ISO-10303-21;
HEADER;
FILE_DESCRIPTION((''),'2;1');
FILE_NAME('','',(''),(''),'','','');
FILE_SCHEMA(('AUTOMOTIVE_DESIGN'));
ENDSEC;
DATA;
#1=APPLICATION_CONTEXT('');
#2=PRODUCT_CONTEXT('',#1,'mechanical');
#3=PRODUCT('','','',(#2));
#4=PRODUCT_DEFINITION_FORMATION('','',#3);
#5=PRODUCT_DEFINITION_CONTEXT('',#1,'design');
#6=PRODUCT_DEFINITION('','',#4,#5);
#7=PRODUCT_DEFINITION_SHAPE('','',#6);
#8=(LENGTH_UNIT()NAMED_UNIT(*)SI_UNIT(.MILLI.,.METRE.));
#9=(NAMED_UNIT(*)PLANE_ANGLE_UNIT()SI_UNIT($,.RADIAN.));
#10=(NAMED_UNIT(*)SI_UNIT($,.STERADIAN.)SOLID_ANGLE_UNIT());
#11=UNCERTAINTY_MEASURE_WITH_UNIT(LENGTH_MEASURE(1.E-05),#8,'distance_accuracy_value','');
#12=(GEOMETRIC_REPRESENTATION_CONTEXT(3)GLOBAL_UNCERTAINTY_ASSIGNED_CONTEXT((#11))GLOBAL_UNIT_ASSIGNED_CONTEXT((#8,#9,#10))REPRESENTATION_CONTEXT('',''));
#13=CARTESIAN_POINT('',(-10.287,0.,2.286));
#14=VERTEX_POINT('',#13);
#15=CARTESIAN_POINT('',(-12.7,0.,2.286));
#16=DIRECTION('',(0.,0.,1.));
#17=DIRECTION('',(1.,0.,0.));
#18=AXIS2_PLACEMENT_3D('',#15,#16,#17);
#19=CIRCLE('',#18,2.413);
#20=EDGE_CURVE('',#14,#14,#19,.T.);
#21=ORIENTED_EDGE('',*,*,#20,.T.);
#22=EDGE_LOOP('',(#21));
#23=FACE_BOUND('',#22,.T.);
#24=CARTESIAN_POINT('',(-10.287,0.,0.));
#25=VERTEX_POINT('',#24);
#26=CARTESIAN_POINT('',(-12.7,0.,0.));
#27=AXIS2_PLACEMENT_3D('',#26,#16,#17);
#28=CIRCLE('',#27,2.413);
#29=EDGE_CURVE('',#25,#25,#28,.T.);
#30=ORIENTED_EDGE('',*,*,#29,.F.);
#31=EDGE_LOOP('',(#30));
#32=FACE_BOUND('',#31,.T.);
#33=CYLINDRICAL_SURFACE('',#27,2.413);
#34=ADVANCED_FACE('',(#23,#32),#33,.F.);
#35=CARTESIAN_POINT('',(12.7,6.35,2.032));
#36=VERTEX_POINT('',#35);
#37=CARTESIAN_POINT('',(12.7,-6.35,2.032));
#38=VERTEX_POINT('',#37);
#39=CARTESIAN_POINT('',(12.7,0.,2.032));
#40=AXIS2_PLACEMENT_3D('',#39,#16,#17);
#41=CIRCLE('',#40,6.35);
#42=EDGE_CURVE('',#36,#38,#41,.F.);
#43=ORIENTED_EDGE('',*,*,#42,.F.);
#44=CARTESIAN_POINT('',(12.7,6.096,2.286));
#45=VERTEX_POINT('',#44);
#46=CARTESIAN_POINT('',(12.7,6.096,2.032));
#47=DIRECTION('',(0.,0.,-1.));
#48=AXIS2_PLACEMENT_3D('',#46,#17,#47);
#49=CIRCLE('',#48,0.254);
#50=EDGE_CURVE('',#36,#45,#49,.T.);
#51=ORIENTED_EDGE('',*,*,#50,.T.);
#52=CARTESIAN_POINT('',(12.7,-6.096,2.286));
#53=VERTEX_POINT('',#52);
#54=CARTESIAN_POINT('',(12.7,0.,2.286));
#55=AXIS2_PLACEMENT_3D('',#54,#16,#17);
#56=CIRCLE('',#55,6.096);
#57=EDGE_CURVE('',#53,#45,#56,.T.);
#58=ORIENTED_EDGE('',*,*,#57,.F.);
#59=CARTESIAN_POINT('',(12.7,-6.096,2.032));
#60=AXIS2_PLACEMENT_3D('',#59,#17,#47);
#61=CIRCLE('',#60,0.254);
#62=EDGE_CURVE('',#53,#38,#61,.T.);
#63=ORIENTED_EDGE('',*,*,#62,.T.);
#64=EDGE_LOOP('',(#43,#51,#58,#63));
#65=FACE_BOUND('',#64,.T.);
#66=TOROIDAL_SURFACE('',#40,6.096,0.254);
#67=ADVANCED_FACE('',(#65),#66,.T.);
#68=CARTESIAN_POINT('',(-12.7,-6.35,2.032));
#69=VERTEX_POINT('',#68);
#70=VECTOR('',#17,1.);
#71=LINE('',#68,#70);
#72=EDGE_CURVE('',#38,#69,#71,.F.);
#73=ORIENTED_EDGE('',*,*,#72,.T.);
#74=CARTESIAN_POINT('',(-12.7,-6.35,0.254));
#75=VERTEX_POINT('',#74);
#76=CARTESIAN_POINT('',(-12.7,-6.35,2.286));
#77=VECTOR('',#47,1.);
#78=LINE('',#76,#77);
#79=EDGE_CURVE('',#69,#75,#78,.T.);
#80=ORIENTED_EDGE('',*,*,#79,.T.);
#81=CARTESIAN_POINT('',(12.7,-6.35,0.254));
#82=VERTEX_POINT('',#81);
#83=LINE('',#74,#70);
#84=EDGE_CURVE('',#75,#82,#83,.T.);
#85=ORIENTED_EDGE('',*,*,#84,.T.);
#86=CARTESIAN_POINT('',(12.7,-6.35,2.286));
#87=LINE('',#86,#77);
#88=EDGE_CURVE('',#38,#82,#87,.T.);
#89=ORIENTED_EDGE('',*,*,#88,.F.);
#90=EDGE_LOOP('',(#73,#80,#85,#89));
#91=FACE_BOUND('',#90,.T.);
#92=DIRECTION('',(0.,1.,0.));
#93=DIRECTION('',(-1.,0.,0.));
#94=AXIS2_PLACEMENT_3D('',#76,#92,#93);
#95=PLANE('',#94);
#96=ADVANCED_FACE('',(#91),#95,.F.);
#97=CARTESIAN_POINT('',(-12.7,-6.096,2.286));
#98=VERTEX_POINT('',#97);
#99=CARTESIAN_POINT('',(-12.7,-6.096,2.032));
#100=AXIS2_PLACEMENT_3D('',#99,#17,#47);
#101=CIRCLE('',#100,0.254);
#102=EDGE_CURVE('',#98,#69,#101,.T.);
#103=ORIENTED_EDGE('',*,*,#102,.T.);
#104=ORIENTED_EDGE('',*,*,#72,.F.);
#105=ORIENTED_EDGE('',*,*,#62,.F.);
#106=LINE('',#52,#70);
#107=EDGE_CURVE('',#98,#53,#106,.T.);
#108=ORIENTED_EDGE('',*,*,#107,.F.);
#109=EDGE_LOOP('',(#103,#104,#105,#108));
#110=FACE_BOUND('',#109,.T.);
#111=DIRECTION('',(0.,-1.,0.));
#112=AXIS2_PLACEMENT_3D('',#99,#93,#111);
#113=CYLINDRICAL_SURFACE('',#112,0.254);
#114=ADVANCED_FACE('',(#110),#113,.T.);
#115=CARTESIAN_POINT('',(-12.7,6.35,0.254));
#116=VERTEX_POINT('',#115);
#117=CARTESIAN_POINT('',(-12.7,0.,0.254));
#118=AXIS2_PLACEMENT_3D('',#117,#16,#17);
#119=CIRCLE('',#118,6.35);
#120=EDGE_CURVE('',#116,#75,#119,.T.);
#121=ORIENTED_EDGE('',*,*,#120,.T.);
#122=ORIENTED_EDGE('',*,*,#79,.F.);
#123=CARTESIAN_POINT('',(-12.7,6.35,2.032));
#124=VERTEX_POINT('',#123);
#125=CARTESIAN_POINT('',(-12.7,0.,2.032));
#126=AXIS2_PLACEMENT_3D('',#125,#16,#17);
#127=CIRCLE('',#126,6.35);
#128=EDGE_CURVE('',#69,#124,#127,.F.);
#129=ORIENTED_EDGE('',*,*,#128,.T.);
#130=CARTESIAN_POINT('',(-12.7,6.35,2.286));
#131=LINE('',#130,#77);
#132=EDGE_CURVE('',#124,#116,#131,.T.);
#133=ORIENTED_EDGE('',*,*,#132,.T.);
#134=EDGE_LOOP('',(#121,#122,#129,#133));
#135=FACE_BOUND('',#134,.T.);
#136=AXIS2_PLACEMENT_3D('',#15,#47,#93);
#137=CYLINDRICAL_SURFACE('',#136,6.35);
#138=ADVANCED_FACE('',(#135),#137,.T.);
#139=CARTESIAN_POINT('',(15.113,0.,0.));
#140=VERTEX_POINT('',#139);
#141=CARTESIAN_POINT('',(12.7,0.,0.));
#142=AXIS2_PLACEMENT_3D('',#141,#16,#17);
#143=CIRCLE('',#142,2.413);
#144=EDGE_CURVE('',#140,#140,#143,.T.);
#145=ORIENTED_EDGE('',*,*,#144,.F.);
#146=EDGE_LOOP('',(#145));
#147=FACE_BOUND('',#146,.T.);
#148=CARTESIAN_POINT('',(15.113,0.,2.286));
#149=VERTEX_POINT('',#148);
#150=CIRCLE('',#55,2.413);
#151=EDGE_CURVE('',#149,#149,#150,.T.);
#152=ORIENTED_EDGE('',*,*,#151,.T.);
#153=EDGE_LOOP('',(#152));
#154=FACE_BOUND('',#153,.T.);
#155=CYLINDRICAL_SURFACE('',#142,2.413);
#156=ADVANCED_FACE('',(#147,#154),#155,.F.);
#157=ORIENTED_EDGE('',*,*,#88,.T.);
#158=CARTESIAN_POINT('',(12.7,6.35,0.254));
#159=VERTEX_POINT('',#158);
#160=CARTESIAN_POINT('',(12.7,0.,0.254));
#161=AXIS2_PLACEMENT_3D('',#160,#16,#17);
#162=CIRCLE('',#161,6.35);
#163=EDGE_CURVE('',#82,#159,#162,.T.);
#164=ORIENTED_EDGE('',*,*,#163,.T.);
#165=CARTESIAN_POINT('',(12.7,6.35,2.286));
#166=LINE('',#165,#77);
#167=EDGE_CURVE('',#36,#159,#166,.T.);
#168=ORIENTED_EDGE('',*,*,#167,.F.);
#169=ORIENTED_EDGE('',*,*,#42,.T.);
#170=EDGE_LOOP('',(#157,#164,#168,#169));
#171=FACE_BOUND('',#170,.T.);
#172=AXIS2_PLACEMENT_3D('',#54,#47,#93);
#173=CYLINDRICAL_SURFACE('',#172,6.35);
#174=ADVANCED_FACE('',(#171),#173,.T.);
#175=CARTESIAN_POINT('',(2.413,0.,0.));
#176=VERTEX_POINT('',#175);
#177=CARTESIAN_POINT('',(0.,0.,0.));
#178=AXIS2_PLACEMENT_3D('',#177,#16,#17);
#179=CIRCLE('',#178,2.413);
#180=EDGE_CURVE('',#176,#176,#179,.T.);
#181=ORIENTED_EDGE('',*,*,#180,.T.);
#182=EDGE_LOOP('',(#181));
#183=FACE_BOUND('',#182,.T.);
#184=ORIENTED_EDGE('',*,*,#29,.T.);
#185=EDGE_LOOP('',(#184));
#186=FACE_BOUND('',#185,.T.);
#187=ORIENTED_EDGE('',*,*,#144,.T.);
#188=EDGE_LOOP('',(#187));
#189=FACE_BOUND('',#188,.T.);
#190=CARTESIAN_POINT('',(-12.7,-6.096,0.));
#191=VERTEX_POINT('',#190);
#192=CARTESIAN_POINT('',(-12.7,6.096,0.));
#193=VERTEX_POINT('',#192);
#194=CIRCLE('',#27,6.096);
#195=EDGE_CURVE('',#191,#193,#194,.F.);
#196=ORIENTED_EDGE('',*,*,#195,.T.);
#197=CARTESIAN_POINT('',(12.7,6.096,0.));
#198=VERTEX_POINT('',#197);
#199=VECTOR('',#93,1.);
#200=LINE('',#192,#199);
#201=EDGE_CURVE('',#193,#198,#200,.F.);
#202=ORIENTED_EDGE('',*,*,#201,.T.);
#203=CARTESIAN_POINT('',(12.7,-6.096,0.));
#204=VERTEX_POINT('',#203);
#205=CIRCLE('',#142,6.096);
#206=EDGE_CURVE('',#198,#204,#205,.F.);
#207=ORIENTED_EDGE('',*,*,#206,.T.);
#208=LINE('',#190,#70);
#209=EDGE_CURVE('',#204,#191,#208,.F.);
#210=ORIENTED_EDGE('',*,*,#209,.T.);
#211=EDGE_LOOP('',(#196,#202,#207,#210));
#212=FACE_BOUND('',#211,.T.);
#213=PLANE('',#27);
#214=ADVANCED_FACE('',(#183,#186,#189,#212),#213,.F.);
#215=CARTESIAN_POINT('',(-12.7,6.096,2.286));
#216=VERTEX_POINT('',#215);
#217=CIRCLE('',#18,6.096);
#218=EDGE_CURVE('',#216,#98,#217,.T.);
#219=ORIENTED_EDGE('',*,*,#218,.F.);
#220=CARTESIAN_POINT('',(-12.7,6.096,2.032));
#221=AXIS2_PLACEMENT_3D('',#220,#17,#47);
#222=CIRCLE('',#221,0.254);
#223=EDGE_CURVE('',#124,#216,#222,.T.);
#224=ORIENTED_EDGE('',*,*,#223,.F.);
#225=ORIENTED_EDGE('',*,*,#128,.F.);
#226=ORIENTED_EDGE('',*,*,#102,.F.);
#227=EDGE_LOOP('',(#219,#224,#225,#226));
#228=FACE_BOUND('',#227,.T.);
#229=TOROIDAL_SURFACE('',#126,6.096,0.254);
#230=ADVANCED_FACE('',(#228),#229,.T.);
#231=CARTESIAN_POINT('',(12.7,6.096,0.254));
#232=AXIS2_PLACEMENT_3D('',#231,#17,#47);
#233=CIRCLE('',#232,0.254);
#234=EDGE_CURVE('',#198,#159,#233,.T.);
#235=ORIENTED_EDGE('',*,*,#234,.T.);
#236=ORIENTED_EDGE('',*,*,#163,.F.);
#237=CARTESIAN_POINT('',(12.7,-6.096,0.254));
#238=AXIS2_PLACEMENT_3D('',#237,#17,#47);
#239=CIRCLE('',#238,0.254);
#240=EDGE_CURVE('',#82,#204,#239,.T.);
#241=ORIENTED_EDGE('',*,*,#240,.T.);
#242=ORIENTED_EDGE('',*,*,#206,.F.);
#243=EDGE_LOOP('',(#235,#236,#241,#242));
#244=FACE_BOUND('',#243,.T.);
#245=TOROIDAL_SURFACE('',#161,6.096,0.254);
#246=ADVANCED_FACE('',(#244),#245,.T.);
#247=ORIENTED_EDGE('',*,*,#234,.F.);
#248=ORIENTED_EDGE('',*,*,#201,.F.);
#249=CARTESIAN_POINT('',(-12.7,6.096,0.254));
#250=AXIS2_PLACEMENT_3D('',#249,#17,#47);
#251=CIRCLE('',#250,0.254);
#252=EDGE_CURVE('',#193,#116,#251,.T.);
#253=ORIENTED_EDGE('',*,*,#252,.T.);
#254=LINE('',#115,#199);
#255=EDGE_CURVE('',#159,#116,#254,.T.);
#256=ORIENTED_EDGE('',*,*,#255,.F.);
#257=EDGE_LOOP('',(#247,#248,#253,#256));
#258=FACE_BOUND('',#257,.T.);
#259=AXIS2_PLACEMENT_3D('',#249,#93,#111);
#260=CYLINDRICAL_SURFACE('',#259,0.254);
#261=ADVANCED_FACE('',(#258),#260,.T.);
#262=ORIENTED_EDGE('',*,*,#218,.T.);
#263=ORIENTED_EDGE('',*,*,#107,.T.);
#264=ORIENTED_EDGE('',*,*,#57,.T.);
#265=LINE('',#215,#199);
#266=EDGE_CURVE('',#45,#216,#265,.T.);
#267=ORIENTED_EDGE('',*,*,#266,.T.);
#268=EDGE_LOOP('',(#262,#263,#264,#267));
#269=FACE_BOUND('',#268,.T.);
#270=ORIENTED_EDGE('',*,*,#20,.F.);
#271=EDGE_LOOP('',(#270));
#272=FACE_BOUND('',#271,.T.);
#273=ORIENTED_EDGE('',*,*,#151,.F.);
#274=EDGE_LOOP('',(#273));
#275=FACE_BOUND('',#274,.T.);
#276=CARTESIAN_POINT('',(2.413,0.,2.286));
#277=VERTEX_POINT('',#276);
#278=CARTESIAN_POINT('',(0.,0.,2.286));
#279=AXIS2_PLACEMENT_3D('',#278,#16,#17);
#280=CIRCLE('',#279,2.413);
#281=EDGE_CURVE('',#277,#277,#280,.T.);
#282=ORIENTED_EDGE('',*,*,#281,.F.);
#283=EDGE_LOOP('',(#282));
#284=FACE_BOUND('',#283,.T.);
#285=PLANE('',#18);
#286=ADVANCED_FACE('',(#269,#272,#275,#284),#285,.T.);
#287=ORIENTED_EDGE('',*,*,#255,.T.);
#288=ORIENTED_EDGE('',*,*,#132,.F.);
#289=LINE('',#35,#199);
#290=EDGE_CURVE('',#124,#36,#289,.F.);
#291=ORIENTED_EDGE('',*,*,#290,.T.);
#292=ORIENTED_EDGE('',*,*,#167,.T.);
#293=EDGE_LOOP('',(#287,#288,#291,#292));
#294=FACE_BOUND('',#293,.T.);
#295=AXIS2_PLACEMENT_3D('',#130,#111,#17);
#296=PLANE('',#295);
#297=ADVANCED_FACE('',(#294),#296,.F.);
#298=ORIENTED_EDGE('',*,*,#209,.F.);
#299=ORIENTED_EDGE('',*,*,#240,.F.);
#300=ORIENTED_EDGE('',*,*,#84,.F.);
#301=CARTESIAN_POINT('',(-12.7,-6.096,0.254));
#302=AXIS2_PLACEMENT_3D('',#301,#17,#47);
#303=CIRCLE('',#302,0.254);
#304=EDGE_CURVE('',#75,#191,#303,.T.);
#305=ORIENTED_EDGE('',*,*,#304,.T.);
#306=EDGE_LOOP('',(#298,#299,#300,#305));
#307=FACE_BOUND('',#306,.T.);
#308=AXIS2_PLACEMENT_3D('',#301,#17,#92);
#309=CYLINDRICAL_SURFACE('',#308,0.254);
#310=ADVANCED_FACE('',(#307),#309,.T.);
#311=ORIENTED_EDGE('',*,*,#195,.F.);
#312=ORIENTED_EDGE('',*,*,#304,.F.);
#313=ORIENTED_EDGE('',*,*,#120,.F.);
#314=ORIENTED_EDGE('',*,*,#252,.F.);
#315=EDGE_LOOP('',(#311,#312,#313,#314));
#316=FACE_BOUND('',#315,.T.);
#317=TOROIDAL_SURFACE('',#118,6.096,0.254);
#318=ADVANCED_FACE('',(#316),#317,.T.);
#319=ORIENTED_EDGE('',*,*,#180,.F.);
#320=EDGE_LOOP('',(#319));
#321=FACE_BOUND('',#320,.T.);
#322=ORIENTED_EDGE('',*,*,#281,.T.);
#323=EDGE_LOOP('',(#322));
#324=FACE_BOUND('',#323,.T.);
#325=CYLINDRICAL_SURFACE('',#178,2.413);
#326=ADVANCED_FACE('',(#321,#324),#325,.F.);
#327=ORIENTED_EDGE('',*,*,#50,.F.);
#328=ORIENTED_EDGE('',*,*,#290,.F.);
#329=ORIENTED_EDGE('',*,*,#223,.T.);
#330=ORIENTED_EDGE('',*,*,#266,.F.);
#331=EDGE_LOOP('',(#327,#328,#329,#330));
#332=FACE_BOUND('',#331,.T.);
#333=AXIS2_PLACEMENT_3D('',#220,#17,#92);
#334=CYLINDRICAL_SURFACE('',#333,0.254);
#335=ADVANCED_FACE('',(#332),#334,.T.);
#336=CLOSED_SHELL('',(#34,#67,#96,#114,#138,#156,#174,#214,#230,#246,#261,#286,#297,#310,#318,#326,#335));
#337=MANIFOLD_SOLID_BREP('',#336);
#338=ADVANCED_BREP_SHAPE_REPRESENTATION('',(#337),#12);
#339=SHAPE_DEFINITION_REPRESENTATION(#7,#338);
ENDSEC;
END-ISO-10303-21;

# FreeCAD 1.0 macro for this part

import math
import FreeCAD as App
import Part
import Sketcher
from FreeCAD import Vector
Q = App.Units.Quantity


def edges_at(feature, points):
    """Names of the edges that pass closest to the given points."""
    edges = feature.Shape.Edges
    near = lambda p: min(range(len(edges)), key=lambda i: edges[i].distToShape(Part.Vertex(*p))[0])
    return sorted({f"Edge{near(p) + 1}" for p in points})

doc = App.newDocument("Part")
body = doc.addObject("PartDesign::Body", "Body")

# Sketch on XY plane
sketch1 = body.newObject("Sketcher::SketchObject", "Sketch")
sketch1.AttachmentSupport = (doc.getObject("XY_Plane"), [""])
sketch1.MapMode = "FlatFace"
sketch1.addGeometry([
    Part.LineSegment(Vector(13, 6, 0), Vector(-13, 6, 0)),
    Part.ArcOfCircle(Part.Circle(Vector(-13, 0, 0), Vector(0, 0, 1), 6), math.radians(90), math.radians(270)),
    Part.LineSegment(Vector(-13, -6, 0), Vector(13, -6, 0)),
    Part.ArcOfCircle(Part.Circle(Vector(13, 0, 0), Vector(0, 0, 1), 6), math.radians(-90), math.radians(90)),
], False)
sketch1.addConstraint([
    Sketcher.Constraint("Tangent", 0, 2, 1, 1),
    Sketcher.Constraint("Tangent", 1, 2, 2, 1),
    Sketcher.Constraint("Tangent", 2, 2, 3, 1),
    Sketcher.Constraint("Tangent", 3, 2, 0, 1),
    Sketcher.Constraint("Horizontal", 0),
    Sketcher.Constraint("Horizontal", 2),
    Sketcher.Constraint("Symmetric", 1, 3, 3, 3, -1, 1),
    Sketcher.Constraint("DistanceX", 0, 2, 0, 1, Q("1 in")),
    Sketcher.Constraint("Radius", 1, Q("0.25 in")),
])
pad1 = body.newObject("PartDesign::Pad", "Pad")
pad1.Profile = sketch1
pad1.Length = Q("0.09 in")

# Sketch on XY plane
sketch2 = body.newObject("Sketcher::SketchObject", "Sketch001")
sketch2.AttachmentSupport = (doc.getObject("XY_Plane"), [""])
sketch2.MapMode = "FlatFace"
sketch2.AttachmentOffset = App.Placement(Vector(0, 0, 0.09 * 25.4), App.Rotation())
sketch2.addGeometry(Part.Circle(Vector(-12.7, 0, 0), Vector(0, 0, 1), 2.4), False)
sketch2.addConstraint([
    Sketcher.Constraint("PointOnObject", 0, 3, -1),
    Sketcher.Constraint("Diameter", 0, Q("0.19 in")),
    Sketcher.Constraint("DistanceX", 0, 3, -1, 1, Q("0.5 in")),
])
pocket1 = body.newObject("PartDesign::Pocket", "Pocket")
pocket1.Profile = sketch2
pocket1.Type = "ThroughAll"
doc.recompute()

linearpattern = body.newObject("PartDesign::LinearPattern", "LinearPattern")
linearpattern.Originals = [pocket1]
linearpattern.Direction = (doc.getObject("X_Axis"), [""])
linearpattern.Mode = "offset"
linearpattern.Offset = Q("0.5 in")
linearpattern.Occurrences = 3
body.Tip = linearpattern
doc.recompute()

fillet = body.newObject("PartDesign::Fillet", "Fillet")
fillet.Base = (linearpattern, edges_at(linearpattern, [
    (19.05, 0, 2.286),
    (0, 6.35, 2.286),
    (-19.05, 0, 2.286),
    (0, 6.35, 0),
    (19.05, 0, 0),
    (0, -6.35, 0),
    (-19.05, 0, 0),
    (0, -6.35, 2.286),
]))
fillet.Radius = Q("0.01 in")

doc.recompute()
